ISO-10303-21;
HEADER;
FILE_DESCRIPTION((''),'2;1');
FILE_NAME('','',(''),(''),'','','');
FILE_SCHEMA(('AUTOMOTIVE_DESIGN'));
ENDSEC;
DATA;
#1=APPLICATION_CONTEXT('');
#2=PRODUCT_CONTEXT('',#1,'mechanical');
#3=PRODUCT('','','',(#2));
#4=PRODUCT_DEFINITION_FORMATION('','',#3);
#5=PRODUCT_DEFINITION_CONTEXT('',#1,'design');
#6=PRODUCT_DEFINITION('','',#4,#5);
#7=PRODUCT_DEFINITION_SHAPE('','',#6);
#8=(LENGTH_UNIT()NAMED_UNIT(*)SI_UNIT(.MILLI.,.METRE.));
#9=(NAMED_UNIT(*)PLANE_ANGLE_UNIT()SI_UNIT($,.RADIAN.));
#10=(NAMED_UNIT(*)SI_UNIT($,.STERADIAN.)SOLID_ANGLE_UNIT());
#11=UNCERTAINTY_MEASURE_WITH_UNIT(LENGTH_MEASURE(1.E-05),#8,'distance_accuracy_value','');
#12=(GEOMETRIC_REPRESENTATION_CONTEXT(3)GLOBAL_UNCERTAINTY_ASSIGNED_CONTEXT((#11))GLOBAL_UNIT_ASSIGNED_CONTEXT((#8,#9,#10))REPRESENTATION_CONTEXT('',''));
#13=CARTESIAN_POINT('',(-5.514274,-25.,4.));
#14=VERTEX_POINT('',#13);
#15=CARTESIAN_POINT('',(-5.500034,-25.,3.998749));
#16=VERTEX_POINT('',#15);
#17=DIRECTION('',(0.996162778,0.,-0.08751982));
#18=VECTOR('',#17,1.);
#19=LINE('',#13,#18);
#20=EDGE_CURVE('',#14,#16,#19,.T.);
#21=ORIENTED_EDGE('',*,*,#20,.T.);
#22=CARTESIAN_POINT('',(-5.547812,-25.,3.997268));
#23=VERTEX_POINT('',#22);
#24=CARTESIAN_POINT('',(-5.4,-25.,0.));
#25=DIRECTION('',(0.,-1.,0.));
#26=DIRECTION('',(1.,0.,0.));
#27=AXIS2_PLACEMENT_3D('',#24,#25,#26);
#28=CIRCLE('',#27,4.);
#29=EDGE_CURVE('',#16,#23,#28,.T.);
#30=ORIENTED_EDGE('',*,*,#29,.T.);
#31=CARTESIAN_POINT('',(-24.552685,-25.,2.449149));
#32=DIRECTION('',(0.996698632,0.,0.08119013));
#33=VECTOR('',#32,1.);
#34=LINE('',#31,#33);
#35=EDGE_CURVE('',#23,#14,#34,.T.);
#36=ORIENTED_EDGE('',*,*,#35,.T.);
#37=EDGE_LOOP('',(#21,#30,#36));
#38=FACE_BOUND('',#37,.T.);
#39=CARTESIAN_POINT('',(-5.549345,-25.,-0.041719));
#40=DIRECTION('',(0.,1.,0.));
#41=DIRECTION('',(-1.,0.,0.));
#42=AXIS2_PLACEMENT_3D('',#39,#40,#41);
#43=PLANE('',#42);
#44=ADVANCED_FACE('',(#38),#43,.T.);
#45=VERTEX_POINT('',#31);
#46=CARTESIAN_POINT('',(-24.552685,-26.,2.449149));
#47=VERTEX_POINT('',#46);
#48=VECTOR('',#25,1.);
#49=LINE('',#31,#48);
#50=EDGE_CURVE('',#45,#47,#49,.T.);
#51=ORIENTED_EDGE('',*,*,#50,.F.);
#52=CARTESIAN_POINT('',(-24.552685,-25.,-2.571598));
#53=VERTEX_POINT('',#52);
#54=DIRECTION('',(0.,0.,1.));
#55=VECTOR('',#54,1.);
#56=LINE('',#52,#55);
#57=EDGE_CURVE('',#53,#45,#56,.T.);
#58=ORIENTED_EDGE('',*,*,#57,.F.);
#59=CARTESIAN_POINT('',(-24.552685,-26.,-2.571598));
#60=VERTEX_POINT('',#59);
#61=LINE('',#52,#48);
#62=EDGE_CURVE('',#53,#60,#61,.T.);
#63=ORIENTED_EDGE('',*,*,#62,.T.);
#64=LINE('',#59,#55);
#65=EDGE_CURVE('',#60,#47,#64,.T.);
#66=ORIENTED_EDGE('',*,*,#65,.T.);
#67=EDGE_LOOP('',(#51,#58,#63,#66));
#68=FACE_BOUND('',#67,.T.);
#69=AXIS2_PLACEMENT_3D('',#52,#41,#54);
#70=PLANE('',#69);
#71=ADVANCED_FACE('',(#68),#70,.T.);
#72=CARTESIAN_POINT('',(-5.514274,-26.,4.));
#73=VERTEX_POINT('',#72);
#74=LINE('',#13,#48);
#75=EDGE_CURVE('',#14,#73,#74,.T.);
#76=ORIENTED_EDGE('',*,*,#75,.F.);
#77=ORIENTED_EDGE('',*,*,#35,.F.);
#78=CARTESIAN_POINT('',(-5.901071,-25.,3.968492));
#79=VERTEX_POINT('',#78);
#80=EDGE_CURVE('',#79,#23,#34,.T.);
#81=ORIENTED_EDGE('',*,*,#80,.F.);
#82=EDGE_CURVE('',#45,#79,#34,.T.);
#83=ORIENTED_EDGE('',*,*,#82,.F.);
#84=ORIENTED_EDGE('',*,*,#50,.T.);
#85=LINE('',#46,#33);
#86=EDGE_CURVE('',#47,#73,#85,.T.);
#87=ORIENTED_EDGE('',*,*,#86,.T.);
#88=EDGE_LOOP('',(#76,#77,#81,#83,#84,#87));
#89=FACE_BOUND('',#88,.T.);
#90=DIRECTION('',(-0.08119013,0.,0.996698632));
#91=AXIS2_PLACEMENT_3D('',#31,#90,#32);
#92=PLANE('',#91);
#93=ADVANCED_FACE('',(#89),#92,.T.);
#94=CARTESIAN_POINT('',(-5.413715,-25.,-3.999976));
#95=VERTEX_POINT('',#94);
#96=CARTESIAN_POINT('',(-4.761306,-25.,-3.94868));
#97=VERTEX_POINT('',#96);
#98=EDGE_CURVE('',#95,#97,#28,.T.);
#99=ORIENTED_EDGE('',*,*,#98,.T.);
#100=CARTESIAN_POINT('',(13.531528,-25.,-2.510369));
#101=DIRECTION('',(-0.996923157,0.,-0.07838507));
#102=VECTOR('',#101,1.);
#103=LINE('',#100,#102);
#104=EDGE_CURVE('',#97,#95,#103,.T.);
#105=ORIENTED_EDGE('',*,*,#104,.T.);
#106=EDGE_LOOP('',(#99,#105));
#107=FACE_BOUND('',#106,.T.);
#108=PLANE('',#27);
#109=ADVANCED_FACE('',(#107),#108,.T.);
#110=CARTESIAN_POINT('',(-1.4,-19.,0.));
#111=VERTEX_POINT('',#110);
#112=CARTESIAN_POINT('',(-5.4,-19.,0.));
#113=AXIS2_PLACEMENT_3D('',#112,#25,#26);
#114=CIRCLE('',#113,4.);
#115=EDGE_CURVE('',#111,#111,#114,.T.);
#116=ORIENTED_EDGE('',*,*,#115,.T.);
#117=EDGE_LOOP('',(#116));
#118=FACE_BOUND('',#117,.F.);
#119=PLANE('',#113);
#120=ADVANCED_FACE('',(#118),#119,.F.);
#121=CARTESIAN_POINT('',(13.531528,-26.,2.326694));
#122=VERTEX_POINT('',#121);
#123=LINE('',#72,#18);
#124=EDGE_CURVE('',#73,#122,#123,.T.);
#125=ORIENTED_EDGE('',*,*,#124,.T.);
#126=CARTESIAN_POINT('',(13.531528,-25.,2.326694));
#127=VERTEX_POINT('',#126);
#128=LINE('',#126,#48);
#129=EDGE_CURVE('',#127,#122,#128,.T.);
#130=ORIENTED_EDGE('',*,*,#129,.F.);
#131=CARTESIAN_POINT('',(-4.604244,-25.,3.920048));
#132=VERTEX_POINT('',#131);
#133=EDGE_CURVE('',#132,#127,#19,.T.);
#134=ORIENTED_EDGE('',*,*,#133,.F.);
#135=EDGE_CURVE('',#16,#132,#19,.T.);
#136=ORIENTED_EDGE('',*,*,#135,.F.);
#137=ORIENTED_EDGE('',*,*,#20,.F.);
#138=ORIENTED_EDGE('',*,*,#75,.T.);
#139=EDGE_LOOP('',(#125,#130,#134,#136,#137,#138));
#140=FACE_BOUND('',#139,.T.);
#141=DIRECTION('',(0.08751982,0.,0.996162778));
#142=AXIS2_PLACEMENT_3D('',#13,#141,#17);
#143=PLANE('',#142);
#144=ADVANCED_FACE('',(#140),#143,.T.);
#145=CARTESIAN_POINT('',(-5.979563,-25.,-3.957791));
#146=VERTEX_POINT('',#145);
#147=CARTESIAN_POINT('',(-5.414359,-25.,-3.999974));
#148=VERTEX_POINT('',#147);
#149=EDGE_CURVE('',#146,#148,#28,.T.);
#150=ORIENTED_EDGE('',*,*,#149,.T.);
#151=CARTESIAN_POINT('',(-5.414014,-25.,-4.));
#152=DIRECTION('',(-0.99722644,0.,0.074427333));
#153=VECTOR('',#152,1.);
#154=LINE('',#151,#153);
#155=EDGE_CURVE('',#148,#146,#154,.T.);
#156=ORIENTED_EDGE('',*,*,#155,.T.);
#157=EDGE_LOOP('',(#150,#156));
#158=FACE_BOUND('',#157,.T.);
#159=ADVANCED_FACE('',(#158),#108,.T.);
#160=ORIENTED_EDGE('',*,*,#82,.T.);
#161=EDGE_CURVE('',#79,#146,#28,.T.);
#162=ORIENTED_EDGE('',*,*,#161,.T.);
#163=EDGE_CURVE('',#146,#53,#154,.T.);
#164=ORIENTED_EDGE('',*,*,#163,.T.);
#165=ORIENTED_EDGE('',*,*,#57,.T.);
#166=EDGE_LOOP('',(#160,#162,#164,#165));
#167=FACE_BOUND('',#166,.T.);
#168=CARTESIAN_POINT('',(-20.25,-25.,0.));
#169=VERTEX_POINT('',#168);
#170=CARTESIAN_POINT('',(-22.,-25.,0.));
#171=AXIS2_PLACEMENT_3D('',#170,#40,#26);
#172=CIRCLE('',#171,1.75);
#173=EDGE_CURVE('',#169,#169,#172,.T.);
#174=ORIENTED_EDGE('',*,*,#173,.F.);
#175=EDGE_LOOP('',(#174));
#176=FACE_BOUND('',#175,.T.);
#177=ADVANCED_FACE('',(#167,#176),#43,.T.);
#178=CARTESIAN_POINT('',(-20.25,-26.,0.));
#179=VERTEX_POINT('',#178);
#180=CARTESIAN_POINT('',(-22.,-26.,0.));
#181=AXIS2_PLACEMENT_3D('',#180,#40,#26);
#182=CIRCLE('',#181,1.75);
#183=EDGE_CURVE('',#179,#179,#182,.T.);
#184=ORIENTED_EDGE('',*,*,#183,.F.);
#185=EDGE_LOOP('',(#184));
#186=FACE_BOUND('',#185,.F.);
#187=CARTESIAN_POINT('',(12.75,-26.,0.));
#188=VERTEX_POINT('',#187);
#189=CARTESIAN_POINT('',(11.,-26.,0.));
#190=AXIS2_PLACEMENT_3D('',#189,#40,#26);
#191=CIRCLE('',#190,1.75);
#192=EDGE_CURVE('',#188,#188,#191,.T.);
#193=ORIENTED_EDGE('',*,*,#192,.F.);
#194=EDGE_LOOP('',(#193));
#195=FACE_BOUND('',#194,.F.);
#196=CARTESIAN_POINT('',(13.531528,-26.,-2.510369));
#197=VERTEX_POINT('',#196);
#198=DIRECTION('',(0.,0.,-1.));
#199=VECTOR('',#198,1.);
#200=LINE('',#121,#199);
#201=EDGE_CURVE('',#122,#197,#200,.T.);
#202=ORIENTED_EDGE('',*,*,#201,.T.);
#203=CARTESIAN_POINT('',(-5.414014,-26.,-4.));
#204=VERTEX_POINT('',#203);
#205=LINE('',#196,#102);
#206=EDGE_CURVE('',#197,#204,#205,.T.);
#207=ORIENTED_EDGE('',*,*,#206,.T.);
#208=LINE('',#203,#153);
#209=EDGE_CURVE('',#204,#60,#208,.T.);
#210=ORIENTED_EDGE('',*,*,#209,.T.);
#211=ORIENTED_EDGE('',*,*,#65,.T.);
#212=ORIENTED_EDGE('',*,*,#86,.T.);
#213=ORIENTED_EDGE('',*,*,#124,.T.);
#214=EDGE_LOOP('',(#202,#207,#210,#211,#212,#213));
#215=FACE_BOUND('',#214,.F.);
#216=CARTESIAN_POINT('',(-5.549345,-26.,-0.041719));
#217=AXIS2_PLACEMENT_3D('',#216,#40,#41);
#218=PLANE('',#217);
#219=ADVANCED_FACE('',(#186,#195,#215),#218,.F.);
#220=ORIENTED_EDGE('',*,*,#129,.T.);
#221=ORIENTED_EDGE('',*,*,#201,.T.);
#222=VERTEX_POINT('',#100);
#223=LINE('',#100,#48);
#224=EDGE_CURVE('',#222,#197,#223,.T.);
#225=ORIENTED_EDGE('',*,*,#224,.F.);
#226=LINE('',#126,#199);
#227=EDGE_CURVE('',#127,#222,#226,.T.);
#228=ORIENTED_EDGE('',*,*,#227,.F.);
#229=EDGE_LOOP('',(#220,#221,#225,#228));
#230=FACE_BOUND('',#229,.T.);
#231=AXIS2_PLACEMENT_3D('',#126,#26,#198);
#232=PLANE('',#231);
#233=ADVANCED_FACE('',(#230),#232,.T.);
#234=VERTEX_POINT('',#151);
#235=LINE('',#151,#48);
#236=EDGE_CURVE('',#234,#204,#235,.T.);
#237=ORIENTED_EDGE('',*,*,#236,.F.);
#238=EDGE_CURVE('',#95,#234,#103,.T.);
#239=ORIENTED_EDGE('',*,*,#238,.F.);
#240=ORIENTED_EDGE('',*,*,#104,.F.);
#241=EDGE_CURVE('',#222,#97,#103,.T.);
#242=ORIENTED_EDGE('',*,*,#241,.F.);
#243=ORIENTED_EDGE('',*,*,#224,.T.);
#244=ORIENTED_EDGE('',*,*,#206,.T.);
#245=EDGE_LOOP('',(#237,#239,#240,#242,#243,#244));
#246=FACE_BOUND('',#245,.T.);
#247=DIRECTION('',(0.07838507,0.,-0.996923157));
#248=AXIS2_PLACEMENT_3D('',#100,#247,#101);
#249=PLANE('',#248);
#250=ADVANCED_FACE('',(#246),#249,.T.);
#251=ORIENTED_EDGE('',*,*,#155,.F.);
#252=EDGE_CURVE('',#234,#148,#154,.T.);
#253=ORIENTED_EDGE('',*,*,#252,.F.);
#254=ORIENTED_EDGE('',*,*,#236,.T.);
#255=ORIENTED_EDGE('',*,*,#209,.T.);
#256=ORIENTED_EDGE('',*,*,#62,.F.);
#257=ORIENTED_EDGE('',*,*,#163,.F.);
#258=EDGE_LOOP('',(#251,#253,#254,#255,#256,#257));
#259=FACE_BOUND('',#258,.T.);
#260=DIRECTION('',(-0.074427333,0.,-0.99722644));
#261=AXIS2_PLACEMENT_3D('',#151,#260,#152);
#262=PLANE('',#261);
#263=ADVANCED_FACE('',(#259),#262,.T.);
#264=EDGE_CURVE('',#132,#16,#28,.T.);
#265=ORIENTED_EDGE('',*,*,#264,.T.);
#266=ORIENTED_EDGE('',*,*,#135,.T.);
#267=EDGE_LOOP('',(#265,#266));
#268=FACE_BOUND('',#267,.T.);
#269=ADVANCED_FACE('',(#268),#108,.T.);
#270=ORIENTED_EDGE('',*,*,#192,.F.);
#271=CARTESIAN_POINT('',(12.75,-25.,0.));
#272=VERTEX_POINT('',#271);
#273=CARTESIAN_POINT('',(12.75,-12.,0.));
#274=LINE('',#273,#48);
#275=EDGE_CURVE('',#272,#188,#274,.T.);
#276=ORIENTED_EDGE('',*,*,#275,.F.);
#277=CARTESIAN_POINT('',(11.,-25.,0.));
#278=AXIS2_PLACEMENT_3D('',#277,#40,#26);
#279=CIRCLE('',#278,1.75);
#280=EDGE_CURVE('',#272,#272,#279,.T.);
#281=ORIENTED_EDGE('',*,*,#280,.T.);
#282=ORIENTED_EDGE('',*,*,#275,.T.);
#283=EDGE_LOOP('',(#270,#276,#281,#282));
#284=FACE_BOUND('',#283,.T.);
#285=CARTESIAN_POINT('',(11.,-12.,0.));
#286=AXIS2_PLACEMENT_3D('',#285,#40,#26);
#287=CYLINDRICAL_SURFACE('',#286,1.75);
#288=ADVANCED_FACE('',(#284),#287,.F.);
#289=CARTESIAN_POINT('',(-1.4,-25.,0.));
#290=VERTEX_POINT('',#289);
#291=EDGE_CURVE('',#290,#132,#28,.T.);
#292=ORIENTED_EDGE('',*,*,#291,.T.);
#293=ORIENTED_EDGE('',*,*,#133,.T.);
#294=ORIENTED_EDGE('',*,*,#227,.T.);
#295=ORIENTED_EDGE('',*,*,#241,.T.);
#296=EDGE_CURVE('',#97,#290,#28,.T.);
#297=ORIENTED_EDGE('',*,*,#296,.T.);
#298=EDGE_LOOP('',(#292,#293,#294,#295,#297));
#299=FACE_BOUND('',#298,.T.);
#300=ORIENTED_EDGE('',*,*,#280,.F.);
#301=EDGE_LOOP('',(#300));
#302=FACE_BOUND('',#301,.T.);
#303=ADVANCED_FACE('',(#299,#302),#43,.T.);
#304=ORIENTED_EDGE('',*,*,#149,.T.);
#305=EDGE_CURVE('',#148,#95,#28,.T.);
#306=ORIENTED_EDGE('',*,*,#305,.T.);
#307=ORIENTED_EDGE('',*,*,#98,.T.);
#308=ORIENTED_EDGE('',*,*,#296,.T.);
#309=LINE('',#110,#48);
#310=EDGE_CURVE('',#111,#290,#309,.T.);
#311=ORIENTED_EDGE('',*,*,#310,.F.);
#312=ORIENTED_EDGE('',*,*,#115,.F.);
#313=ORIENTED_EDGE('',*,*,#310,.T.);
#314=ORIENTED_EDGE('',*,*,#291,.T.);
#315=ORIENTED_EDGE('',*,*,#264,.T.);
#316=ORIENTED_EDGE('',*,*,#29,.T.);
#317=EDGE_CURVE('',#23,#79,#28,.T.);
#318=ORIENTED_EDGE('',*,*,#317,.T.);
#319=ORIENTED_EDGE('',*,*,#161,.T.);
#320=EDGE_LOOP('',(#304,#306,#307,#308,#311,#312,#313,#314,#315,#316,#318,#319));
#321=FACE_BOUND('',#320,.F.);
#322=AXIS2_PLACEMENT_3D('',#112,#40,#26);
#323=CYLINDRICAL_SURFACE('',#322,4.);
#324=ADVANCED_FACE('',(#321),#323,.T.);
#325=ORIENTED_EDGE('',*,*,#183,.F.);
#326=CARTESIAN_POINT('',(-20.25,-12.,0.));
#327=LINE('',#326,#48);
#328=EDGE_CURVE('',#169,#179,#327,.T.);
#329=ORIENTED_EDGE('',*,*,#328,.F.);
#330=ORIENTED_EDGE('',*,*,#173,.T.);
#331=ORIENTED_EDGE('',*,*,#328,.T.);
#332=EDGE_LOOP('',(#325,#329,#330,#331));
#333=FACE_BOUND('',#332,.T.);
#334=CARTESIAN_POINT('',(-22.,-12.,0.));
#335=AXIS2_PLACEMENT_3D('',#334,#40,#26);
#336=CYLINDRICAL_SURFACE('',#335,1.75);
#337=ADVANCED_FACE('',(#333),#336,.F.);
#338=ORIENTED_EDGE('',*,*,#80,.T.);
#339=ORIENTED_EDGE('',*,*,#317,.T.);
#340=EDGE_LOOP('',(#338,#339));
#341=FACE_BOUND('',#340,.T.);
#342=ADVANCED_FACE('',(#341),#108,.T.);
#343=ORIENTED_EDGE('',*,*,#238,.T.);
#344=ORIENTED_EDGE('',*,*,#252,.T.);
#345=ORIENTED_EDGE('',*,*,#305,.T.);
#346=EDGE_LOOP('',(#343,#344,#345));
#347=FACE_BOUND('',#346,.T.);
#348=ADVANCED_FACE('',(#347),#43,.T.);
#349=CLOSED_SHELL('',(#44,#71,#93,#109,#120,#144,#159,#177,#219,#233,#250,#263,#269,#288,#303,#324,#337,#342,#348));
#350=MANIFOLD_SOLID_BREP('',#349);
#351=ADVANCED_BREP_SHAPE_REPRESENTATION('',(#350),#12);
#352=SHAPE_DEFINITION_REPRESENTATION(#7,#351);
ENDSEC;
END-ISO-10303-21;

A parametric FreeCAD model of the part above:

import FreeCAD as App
import Part
import Sketcher
from FreeCAD import Vector
Q = App.Units.Quantity


def add_polygon(sketch, points):
    """Adds a closed chain of lines whose ends are joined by coincident constraints."""
    first, n = sketch.GeometryCount, len(points)
    for a, b in zip(points, points[1:] + points[:1]):
        sketch.addGeometry(Part.LineSegment(App.Vector(*a, 0), App.Vector(*b, 0)), False)
    for i in range(n):
        sketch.addConstraint(Sketcher.Constraint("Coincident", first + i, 2, first + (i + 1) % n, 1))

doc = App.newDocument("Part")
body = doc.addObject("PartDesign::Body", "Body")

sketch1 = body.newObject("Sketcher::SketchObject", "Sketch")
sketch1.AttachmentSupport = (doc.getObject("XY_Plane"), [""])
sketch1.MapMode = "FlatFace"
sketch1.addGeometry(Part.Circle(Vector(0, 0, 0), Vector(0, 0, 1), 1.75), False)
sketch1.addConstraint([
    Sketcher.Constraint("Coincident", 0, 3, -1, 1),
    Sketcher.Constraint("Diameter", 0, Q("3.5 mm")),
])
pad1 = body.newObject("PartDesign::Pad", "Pad")
pad1.Profile = sketch1
pad1.Length = 17
body2 = doc.addObject("PartDesign::Body", "Body001")
doc.recompute()

body.Placement = App.Placement(Vector(0, 0, 0), App.Rotation(Vector(1, 0, 0), 90))
boolean = body2.newObject("PartDesign::Boolean", "Boolean")
boolean.Type = "Fuse"
boolean.addObjects([body])
body3 = doc.addObject("PartDesign::Body", "Body002")
doc.recompute()

body2.Placement = App.Placement(Vector(-22, -12, 0), App.Rotation(Vector(0, 0, 1), 0))
boolean2 = body3.newObject("PartDesign::Boolean", "Boolean001")
boolean2.Type = "Fuse"
boolean2.addObjects([body2])
body4 = doc.addObject("PartDesign::Body", "Body003")

sketch2 = body4.newObject("Sketcher::SketchObject", "Sketch001")
sketch2.AttachmentSupport = (doc.getObject("XY_Plane003"), [""])
sketch2.MapMode = "FlatFace"
sketch2.addGeometry(Part.Circle(Vector(0, 0, 0), Vector(0, 0, 1), 1.75), False)
sketch2.addConstraint([
    Sketcher.Constraint("Coincident", 0, 3, -1, 1),
    Sketcher.Constraint("Diameter", 0, Q("3.5 mm")),
])
pad2 = body4.newObject("PartDesign::Pad", "Pad001")
pad2.Profile = sketch2
pad2.Length = 17
body5 = doc.addObject("PartDesign::Body", "Body004")
doc.recompute()

body4.Placement = App.Placement(Vector(0, 0, 0), App.Rotation(Vector(1, 0, 0), 90))
boolean3 = body5.newObject("PartDesign::Boolean", "Boolean002")
boolean3.Type = "Fuse"
boolean3.addObjects([body4])
body6 = doc.addObject("PartDesign::Body", "Body005")
body6.AllowCompound = True
doc.recompute()

body5.Placement = App.Placement(Vector(11, -12, 0), App.Rotation(Vector(0, 0, 1), 0))
boolean4 = body6.newObject("PartDesign::Boolean", "Boolean003")
boolean4.Type = "Fuse"
boolean4.addObjects([body5])
doc.recompute()

boolean5 = body6.newObject("PartDesign::Boolean", "Boolean004")
boolean5.Type = "Fuse"
boolean5.addObjects([body3])
body7 = doc.addObject("PartDesign::Body", "Body006")

sketch3 = body7.newObject("Sketcher::SketchObject", "Sketch002")
sketch3.AttachmentSupport = (doc.getObject("XZ_Plane006"), [""])
sketch3.MapMode = "FlatFace"
sketch3.AttachmentOffset = App.Placement(Vector(0, 0, 25), App.Rotation())
add_polygon(sketch3, [(-5.514274, 4), (-24.552685, 2.449149), (-24.552685, -2.571598), (-5.414014, -4), (13.531528, -2.510369), (13.531528, 2.326694)])
sketch3.addConstraint([
    Sketcher.Constraint("Vertical", 1),
    Sketcher.Constraint("Vertical", 4),
    Sketcher.Constraint("DistanceY", 2, 2, -1, 1, Q("4 mm")),
    Sketcher.Constraint("DistanceY", -1, 1, 5, 2, Q("4 mm")),
    Sketcher.Constraint("Distance", 2, Q("19.191901 mm")),
    Sketcher.Constraint("Distance", 0, Q("19.101472 mm")),
    Sketcher.Constraint("DistanceY", 1, 2, 1, 1, Q("5.020747 mm")),
    Sketcher.Constraint("DistanceY", 4, 1, 4, 2, Q("4.837063 mm")),
    Sketcher.Constraint("DistanceY", -1, 1, 0, 2, Q("2.449149 mm")),
    Sketcher.Constraint("DistanceY", 3, 2, -1, 1, Q("2.510369 mm")),
    Sketcher.Constraint("DistanceX", 2, 2, 3, 2, Q("18.945542 mm")),
    Sketcher.Constraint("DistanceX", 0, 2, -1, 1, Q("24.552685 mm")),
])
pad3 = body7.newObject("PartDesign::Pad", "Pad002")
pad3.Profile = sketch3
pad3.Length = 1
doc.recompute()

boolean6 = body7.newObject("PartDesign::Boolean", "Boolean005")
boolean6.Type = "Cut"
boolean6.addObjects([body6])
body8 = doc.addObject("PartDesign::Body", "Body007")

sketch4 = body8.newObject("Sketcher::SketchObject", "Sketch003")
sketch4.AttachmentSupport = (doc.getObject("XY_Plane007"), [""])
sketch4.MapMode = "FlatFace"
sketch4.addGeometry(Part.Circle(Vector(0, 0, 0), Vector(0, 0, 1), 4), False)
sketch4.addConstraint([
    Sketcher.Constraint("Coincident", 0, 3, -1, 1),
    Sketcher.Constraint("Diameter", 0, Q("8 mm")),
])
pad4 = body8.newObject("PartDesign::Pad", "Pad003")
pad4.Profile = sketch4
pad4.Length = 6
body9 = doc.addObject("PartDesign::Body", "Body008")
doc.recompute()

body8.Placement = App.Placement(Vector(0, 0, 0), App.Rotation(Vector(1, 0, 0), 90))
boolean7 = body9.newObject("PartDesign::Boolean", "Boolean006")
boolean7.Type = "Fuse"
boolean7.addObjects([body8])
body10 = doc.addObject("PartDesign::Body", "Body009")
doc.recompute()

body9.Placement = App.Placement(Vector(-5.4, -19, 0), App.Rotation(Vector(0, 0, 1), 0))
boolean8 = body10.newObject("PartDesign::Boolean", "Boolean007")
boolean8.Type = "Fuse"
boolean8.addObjects([body9])
doc.recompute()

boolean9 = body10.newObject("PartDesign::Boolean", "Boolean008")
boolean9.Type = "Fuse"
boolean9.addObjects([body7])

doc.recompute()
